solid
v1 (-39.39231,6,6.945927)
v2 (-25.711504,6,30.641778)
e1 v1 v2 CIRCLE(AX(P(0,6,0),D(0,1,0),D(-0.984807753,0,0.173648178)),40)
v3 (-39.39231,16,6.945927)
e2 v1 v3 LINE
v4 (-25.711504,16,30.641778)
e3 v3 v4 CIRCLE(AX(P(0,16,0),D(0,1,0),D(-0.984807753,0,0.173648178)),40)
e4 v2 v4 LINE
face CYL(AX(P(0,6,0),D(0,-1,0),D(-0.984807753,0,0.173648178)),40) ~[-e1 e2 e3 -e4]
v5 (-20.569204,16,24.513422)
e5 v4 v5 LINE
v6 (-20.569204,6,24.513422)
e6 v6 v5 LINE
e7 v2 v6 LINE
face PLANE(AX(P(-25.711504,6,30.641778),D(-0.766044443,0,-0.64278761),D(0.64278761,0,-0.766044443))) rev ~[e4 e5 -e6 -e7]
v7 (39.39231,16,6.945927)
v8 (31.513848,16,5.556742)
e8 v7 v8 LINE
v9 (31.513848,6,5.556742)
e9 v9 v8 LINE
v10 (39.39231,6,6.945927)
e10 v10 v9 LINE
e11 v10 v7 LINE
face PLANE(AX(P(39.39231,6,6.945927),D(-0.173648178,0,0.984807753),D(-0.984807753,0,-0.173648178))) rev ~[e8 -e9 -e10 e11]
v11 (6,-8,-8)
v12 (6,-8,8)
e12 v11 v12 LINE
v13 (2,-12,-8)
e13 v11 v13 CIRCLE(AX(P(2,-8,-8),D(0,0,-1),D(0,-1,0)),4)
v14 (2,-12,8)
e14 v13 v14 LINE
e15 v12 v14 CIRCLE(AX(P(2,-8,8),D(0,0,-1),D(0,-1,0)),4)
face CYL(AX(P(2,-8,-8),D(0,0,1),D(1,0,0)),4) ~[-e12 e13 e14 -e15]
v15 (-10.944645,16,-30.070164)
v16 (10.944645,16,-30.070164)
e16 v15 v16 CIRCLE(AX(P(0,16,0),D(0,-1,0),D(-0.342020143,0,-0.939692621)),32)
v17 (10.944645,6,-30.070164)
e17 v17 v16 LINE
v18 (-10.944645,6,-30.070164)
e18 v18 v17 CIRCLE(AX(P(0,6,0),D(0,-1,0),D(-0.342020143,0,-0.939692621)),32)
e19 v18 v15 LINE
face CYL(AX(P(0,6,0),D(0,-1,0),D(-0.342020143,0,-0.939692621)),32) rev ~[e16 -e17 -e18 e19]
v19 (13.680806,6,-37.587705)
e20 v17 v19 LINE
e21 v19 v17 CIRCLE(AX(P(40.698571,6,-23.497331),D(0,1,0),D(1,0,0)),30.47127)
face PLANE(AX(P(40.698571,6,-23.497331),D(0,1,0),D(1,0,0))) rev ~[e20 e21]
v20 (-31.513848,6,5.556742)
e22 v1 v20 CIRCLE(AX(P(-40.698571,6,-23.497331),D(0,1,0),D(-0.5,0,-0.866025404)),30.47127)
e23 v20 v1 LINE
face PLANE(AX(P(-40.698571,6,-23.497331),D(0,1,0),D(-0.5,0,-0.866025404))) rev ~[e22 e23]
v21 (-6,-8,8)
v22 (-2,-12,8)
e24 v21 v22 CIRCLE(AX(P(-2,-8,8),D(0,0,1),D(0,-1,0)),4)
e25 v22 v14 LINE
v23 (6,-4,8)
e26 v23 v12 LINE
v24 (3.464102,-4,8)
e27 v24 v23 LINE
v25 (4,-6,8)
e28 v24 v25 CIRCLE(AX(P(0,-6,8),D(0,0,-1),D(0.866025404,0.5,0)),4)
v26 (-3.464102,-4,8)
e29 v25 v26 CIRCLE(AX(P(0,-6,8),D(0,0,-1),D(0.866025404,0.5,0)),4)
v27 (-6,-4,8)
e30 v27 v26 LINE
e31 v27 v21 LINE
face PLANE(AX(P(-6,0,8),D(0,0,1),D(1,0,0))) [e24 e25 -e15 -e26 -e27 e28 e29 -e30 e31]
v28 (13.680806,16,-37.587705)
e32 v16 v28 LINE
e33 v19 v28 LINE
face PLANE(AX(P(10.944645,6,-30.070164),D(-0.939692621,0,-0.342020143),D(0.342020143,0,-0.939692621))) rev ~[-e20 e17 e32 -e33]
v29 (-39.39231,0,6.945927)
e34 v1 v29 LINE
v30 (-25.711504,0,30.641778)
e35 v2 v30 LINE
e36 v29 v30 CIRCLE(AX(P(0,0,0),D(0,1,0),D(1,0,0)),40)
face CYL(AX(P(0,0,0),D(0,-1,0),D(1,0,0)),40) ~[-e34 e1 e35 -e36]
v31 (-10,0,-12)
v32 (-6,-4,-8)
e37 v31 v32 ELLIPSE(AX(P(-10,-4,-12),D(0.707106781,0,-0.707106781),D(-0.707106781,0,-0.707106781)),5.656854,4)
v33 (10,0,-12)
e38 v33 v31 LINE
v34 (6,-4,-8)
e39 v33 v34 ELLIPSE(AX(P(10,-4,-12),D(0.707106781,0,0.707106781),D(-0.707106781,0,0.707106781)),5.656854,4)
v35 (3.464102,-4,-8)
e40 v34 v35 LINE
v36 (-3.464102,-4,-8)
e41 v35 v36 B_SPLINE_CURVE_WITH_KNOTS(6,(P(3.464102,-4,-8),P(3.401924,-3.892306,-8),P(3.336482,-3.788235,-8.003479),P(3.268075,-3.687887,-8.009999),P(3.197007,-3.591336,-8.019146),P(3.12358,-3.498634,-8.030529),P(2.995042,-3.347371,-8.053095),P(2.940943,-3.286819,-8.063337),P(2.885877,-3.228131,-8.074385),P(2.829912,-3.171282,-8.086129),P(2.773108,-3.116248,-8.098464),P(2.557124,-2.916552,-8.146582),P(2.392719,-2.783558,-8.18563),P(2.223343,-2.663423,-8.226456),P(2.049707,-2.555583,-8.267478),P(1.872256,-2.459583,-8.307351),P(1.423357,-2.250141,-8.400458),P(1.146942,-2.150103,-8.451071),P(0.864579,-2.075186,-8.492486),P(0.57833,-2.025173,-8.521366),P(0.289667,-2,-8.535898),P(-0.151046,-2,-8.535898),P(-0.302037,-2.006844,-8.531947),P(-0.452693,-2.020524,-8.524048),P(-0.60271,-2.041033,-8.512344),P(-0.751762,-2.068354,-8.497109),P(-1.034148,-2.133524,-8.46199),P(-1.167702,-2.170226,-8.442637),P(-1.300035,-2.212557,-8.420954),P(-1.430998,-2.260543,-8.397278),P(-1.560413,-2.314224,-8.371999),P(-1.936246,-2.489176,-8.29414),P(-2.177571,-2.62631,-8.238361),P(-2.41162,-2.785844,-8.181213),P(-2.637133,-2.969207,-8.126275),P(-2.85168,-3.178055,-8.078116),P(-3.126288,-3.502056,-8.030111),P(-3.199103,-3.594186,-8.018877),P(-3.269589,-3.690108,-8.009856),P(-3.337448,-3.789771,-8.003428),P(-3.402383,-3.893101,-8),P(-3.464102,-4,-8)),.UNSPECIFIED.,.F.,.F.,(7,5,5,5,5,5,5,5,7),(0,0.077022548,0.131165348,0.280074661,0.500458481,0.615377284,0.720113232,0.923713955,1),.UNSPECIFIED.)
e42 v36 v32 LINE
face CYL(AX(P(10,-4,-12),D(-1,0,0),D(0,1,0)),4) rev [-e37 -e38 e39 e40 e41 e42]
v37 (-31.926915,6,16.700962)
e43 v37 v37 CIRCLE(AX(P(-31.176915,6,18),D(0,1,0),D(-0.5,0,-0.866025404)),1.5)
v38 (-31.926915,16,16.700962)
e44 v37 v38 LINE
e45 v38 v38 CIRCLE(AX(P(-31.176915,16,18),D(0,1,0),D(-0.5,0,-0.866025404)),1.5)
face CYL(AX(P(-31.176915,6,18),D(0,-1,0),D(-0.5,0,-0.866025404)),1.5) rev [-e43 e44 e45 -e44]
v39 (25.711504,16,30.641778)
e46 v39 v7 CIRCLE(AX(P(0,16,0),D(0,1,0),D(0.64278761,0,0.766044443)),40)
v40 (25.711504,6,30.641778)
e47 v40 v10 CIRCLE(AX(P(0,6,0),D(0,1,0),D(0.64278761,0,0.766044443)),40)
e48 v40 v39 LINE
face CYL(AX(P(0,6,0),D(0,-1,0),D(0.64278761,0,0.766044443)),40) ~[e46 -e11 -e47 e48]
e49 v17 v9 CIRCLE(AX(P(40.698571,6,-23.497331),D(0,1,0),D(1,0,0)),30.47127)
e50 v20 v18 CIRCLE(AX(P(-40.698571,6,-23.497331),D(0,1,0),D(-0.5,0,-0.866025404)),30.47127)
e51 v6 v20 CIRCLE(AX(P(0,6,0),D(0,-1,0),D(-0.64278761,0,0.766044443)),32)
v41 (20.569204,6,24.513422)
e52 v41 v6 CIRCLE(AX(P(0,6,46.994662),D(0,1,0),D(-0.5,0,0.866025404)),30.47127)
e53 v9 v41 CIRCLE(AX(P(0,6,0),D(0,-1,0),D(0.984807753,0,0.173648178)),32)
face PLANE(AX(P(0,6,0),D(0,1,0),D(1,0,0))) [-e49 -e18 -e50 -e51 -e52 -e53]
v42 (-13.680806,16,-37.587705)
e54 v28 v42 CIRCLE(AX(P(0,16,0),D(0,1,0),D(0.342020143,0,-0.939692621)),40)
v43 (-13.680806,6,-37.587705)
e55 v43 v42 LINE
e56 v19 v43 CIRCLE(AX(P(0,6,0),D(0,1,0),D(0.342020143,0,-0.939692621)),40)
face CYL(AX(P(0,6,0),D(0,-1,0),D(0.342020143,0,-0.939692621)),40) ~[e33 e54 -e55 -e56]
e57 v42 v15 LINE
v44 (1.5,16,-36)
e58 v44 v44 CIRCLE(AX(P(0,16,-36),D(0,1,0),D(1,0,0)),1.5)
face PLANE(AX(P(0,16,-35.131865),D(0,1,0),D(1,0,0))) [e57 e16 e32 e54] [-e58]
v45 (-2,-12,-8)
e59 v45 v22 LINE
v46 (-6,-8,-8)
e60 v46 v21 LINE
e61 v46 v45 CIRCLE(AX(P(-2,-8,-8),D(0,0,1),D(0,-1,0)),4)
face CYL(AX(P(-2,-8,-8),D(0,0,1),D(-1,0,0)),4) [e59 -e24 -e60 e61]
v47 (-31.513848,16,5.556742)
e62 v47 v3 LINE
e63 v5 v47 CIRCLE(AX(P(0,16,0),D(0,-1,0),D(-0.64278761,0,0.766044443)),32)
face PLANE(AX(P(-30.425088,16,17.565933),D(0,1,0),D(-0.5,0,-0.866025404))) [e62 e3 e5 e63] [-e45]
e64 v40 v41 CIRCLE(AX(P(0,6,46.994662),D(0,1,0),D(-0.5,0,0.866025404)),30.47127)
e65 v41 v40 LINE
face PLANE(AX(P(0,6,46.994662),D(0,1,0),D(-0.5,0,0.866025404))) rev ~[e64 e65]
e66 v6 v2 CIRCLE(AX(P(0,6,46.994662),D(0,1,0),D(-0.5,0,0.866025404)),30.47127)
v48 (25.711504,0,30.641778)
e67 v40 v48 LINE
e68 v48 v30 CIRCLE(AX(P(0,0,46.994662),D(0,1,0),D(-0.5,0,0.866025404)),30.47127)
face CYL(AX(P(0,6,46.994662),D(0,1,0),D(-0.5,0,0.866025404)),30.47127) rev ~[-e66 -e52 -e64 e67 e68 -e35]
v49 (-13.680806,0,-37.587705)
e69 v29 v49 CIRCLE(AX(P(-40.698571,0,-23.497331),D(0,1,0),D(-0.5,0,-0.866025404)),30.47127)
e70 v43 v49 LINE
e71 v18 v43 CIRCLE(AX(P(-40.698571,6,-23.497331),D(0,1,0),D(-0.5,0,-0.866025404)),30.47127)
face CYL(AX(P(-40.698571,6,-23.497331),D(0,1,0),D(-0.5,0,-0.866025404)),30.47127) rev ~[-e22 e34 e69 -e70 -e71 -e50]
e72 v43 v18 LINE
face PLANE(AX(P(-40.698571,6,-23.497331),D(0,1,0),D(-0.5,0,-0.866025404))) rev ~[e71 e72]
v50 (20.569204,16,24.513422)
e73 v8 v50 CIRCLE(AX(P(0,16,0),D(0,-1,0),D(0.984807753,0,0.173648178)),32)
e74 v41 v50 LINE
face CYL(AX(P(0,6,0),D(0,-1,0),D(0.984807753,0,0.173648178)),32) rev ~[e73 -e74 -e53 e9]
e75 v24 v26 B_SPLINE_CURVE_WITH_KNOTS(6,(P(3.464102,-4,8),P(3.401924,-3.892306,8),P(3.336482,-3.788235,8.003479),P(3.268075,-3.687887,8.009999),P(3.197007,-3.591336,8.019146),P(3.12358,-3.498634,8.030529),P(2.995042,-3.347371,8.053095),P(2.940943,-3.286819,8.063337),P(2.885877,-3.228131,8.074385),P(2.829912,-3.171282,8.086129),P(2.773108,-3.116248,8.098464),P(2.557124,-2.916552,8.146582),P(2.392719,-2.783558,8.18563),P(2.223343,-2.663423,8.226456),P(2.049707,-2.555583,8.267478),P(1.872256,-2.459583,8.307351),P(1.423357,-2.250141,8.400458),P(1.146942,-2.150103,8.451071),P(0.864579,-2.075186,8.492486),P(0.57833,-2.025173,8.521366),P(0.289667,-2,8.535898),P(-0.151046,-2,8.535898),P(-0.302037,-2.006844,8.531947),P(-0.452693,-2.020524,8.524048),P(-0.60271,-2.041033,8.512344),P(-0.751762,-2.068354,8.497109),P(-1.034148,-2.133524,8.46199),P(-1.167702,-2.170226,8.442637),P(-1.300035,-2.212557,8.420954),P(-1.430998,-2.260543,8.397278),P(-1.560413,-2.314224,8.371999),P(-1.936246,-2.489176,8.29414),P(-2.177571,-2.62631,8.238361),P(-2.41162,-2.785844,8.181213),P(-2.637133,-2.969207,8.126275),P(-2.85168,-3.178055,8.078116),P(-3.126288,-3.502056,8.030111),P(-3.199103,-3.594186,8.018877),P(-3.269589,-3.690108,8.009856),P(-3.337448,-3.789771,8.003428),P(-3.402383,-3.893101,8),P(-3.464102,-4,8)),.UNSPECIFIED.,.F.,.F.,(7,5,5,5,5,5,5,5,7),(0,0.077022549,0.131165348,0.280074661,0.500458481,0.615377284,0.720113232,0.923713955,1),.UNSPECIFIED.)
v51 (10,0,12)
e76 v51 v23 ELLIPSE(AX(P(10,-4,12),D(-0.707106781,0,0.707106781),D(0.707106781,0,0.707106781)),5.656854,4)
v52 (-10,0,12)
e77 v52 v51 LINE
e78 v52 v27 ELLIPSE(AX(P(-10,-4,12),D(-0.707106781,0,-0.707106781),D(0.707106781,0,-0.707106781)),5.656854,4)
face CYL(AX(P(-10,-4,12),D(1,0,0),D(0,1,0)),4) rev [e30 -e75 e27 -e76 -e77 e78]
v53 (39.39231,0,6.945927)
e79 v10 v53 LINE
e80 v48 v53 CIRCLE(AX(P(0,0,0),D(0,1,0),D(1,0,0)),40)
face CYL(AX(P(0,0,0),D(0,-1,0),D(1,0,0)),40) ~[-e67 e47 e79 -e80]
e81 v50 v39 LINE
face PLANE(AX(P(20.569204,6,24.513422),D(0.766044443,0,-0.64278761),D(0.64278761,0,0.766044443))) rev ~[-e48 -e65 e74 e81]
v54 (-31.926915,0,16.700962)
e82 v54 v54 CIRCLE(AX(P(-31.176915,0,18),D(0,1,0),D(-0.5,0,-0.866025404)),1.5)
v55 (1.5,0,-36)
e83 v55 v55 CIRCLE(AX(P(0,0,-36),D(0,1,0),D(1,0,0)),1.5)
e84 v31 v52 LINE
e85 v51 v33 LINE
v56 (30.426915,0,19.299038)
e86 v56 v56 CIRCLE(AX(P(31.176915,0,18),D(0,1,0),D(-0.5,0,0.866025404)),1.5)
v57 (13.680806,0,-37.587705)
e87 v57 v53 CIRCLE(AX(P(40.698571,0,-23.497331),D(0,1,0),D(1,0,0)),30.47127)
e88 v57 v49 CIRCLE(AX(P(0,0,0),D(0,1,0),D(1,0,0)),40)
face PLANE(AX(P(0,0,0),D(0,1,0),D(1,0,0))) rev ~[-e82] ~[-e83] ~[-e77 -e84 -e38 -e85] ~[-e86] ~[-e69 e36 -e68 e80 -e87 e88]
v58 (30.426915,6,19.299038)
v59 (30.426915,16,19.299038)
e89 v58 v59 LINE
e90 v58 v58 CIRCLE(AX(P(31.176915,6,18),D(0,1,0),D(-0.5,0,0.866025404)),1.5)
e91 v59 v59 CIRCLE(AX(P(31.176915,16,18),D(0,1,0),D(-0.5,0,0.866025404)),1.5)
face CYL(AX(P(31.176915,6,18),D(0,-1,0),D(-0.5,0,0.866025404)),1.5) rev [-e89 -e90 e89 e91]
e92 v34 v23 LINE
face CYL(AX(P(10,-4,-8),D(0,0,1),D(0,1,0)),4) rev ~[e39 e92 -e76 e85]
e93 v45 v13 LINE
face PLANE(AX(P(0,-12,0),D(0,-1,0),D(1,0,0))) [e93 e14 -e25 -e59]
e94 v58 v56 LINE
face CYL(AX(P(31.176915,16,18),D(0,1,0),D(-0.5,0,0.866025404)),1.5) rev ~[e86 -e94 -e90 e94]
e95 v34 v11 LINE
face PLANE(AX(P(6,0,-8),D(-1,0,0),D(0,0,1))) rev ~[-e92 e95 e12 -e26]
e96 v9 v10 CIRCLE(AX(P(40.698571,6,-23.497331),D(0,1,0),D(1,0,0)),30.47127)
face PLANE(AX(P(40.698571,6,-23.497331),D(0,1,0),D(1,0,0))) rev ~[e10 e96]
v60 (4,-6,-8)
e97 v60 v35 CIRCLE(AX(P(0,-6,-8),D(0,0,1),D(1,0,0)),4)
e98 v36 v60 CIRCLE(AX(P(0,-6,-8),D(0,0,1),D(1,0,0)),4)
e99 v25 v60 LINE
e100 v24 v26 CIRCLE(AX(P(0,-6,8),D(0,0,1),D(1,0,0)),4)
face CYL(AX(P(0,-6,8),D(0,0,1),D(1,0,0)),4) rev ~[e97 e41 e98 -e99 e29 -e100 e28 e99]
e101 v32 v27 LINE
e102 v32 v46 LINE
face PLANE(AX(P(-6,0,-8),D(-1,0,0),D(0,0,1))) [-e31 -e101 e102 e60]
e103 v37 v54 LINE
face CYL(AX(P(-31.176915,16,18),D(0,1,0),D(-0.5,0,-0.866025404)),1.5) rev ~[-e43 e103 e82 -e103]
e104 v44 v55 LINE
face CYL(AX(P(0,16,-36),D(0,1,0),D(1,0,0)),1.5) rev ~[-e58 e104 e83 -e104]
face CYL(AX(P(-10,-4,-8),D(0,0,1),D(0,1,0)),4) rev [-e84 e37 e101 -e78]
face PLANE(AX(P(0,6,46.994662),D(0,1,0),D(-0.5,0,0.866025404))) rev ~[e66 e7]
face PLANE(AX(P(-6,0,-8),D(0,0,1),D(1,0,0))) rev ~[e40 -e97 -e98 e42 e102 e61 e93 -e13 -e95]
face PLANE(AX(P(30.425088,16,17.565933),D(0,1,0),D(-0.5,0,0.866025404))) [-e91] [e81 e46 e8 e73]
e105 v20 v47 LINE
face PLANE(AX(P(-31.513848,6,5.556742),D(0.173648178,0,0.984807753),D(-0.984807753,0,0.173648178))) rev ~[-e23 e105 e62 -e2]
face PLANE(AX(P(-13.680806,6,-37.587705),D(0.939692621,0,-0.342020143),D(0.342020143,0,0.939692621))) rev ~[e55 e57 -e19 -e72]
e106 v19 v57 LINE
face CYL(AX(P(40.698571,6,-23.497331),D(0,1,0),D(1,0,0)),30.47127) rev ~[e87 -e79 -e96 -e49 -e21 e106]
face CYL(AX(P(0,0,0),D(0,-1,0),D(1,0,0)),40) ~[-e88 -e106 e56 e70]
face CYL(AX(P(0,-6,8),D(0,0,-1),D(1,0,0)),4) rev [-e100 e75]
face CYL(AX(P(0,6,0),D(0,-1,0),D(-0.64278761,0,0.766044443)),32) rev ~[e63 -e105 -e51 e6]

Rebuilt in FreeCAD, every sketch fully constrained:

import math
import FreeCAD as App
import Part
import Sketcher
from FreeCAD import Vector
Q = App.Units.Quantity


def edges_at(feature, points):
    """Names of the edges that pass closest to the given points."""
    edges = feature.Shape.Edges
    near = lambda p: min(range(len(edges)), key=lambda i: edges[i].distToShape(Part.Vertex(*p))[0])
    return sorted({f"Edge{near(p) + 1}" for p in points})


def add_polygon(sketch, points):
    """Adds a closed chain of lines whose ends are joined by coincident constraints."""
    first, n = sketch.GeometryCount, len(points)
    for a, b in zip(points, points[1:] + points[:1]):
        sketch.addGeometry(Part.LineSegment(App.Vector(*a, 0), App.Vector(*b, 0)), False)
    for i in range(n):
        sketch.addConstraint(Sketcher.Constraint("Coincident", first + i, 2, first + (i + 1) % n, 1))

doc = App.newDocument("Part")
body = doc.addObject("PartDesign::Body", "Body")

sketch1 = body.newObject("Sketcher::SketchObject", "Sketch")
sketch1.AttachmentSupport = (doc.getObject("XZ_Plane"), [""])
sketch1.MapMode = "FlatFace"
sketch1.addGeometry(Part.Circle(Vector(0, 0, 0), Vector(0, 0, 1), 40), False)
sketch1.addConstraint([
    Sketcher.Constraint("Coincident", 0, 3, -1, 1),
    Sketcher.Constraint("Diameter", 0, 80.0),
])
pad1 = body.newObject("PartDesign::Pad", "Pad")
pad1.Profile = sketch1
pad1.Length = 6
pad1.Reversed = True

sketch2 = body.newObject("Sketcher::SketchObject", "Sketch001")
sketch2.AttachmentSupport = (doc.getObject("XZ_Plane"), [""])
sketch2.MapMode = "FlatFace"
sketch2.AttachmentOffset = App.Placement(Vector(0, 0, -6), App.Rotation())
sketch2.addGeometry([
    Part.LineSegment(Vector(-13.7, -37.6, 0), Vector(-10.9, -30.1, 0)),
    Part.ArcOfCircle(Part.Circle(Vector(0, 0, 0), Vector(0, 0, 1), 32), math.radians(-110), math.radians(-70)),
    Part.LineSegment(Vector(10.9, -30.1, 0), Vector(13.7, -37.6, 0)),
    Part.ArcOfCircle(Part.Circle(Vector(0, 0, 0), Vector(0, 0, 1), 40), math.radians(-110), math.radians(-70)),
    Part.Circle(Vector(0, -36, 0), Vector(0, 0, 1), 1.5),
], False)
sketch2.addConstraint([
    Sketcher.Constraint("Coincident", 0, 2, 1, 1),
    Sketcher.Constraint("Coincident", 1, 2, 2, 1),
    Sketcher.Constraint("Coincident", 2, 2, 3, 2),
    Sketcher.Constraint("Coincident", 3, 1, 0, 1),
    Sketcher.Constraint("Coincident", 1, 3, -1, 1),
    Sketcher.Constraint("Coincident", 3, 3, -1, 1),
    Sketcher.Constraint("PointOnObject", 4, 3, -2),
    Sketcher.Constraint("Horizontal", 0, 2, 1, 2),
    Sketcher.Constraint("Horizontal", 2, 2, 3, 1),
    Sketcher.Constraint("Diameter", 4, 3.0),
    Sketcher.Constraint("Radius", 1, 32.0),
    Sketcher.Constraint("Radius", 3, 40.0),
    Sketcher.Constraint("Angle", 0, Q("70 deg")),
    Sketcher.Constraint("DistanceY", 4, 3, -1, 1, 36.0),
    Sketcher.Constraint("DistanceX", 0, 2, 1, 2, 21.889289),
])
pad2 = body.newObject("PartDesign::Pad", "Pad001")
pad2.Profile = sketch2
pad2.Length = 10
pad2.Reversed = True

sketch3 = body.newObject("Sketcher::SketchObject", "Sketch002")
sketch3.AttachmentSupport = (doc.getObject("XZ_Plane"), [""])
sketch3.MapMode = "FlatFace"
sketch3.AttachmentOffset = App.Placement(Vector(0, 0, -16), App.Rotation())
sketch3.addGeometry(Part.Circle(Vector(0, -36, 0), Vector(0, 0, 1), 1.5), False)
sketch3.addConstraint([
    Sketcher.Constraint("PointOnObject", 0, 3, -2),
    Sketcher.Constraint("Diameter", 0, 3.0),
    Sketcher.Constraint("DistanceY", 0, 3, -1, 1, 36.0),
])
pocket1 = body.newObject("PartDesign::Pocket", "Pocket")
pocket1.Profile = sketch3
pocket1.Type = "ThroughAll"
pocket1.Reversed = True
doc.recompute()

polarpattern = body.newObject("PartDesign::PolarPattern", "PolarPattern")
polarpattern.Originals = [pad2, pocket1]
polarpattern.Axis = (doc.getObject("Y_Axis"), [""])
polarpattern.Angle = 360
polarpattern.Occurrences = 3
body.Tip = polarpattern

sketch4 = body.newObject("Sketcher::SketchObject", "Sketch003")
sketch4.AttachmentSupport = (doc.getObject("XZ_Plane"), [""])
sketch4.MapMode = "FlatFace"
sketch4.AttachmentOffset = App.Placement(Vector(0, 0, -6), App.Rotation())
sketch4.addGeometry(Part.Circle(Vector(41, -23, 0), Vector(0, 0, 1), 30), False)
sketch4.addConstraint([
    Sketcher.Constraint("Diameter", 0, 60.94254),
    Sketcher.Constraint("DistanceX", -1, 1, 0, 3, 40.698571),
    Sketcher.Constraint("DistanceY", 0, 3, -1, 1, 23.497331),
])
pocket2 = body.newObject("PartDesign::Pocket", "Pocket001")
pocket2.Profile = sketch4
pocket2.Type = "ThroughAll"
pocket2.Reversed = True
doc.recompute()

polarpattern2 = body.newObject("PartDesign::PolarPattern", "PolarPattern001")
polarpattern2.Originals = [pocket2]
polarpattern2.Axis = (doc.getObject("Y_Axis"), [""])
polarpattern2.Angle = 360
polarpattern2.Occurrences = 3
body.Tip = polarpattern2

sketch5 = body.newObject("Sketcher::SketchObject", "Sketch004")
sketch5.AttachmentSupport = (doc.getObject("XZ_Plane"), [""])
sketch5.MapMode = "FlatFace"
add_polygon(sketch5, [(-6, 8), (-6, -8), (6, -8), (6, 8)])
sketch5.addConstraint([
    Sketcher.Constraint("Vertical", 0),
    Sketcher.Constraint("Horizontal", 1),
    Sketcher.Constraint("Vertical", 2),
    Sketcher.Constraint("Horizontal", 3),
    Sketcher.Constraint("Symmetric", 0, 2, 2, 2, -1, 1),
    Sketcher.Constraint("DistanceX", 1, 1, 1, 2, 12.0),
    Sketcher.Constraint("DistanceY", 0, 2, 0, 1, 16.0),
])
pad3 = body.newObject("PartDesign::Pad", "Pad002")
pad3.Profile = sketch5
pad3.Length = 12
doc.recompute()

fillet = body.newObject("PartDesign::Fillet", "Fillet")
fillet.Base = (pad3, edges_at(pad3, [
    (-6, 0, 0),
    (6, 0, 0),
    (-6, -12, 0),
    (6, -12, 0),
]))
fillet.Radius = 4
doc.recompute()

fillet2 = body.newObject("PartDesign::Fillet", "Fillet001")
fillet2.Base = (fillet, edges_at(fillet, [(0, 0, 8), (0, 0, -8)]))
fillet2.Radius = 4

sketch6 = body.newObject("Sketcher::SketchObject", "Sketch005")
sketch6.AttachmentSupport = (doc.getObject("XY_Plane"), [""])
sketch6.MapMode = "FlatFace"
sketch6.AttachmentOffset = App.Placement(Vector(0, 0, 8), App.Rotation())
sketch6.addGeometry(Part.Circle(Vector(0, -6, 0), Vector(0, 0, 1), 4), False)
sketch6.addConstraint([
    Sketcher.Constraint("PointOnObject", 0, 3, -2),
    Sketcher.Constraint("Diameter", 0, 8.0),
    Sketcher.Constraint("DistanceY", 0, 3, -1, 1, 6.0),
])
pocket3 = body.newObject("PartDesign::Pocket", "Pocket002")
pocket3.Profile = sketch6
pocket3.Type = "ThroughAll"
pocket3.Midplane = True

doc.recompute()
